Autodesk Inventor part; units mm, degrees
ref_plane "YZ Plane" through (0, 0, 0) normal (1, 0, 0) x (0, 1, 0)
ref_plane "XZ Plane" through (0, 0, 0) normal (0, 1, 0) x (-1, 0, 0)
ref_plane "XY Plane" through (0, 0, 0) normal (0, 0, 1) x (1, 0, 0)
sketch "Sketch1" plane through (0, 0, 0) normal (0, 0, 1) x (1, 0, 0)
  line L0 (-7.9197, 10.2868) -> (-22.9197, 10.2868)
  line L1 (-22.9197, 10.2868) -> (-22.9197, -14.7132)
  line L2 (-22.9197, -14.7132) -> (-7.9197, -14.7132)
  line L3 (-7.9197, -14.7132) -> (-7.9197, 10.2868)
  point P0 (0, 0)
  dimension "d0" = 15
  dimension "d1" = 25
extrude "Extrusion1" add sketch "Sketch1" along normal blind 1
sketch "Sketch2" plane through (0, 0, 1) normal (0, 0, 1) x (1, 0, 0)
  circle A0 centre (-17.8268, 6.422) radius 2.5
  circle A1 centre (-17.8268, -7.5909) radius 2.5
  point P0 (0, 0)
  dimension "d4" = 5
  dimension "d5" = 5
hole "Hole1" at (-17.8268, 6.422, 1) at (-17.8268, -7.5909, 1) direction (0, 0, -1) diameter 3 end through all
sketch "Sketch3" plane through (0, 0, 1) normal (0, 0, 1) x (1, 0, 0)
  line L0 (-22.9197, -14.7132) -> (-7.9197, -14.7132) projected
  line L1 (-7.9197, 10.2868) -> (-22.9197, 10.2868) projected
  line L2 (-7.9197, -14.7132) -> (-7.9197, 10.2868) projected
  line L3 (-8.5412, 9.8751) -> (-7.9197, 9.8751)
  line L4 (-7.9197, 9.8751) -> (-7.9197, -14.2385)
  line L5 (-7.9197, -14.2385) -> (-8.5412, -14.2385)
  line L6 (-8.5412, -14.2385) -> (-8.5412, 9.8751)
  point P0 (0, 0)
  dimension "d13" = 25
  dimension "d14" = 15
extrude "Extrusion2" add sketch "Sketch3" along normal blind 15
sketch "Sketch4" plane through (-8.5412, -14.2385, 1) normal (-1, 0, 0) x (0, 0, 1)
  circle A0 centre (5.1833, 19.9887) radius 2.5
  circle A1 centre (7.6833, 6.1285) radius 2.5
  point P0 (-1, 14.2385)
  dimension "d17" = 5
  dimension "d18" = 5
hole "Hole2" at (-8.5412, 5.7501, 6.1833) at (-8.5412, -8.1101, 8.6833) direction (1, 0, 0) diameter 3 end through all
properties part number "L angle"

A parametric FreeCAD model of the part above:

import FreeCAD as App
import Part
import Sketcher

doc = App.newDocument("Part")
body = doc.addObject("PartDesign::Body", "Body")

# Sketch on XY plane
sketch1 = body.newObject("Sketcher::SketchObject", "Sketch")
sketch1.AttachmentSupport = (doc.getObject("XY_Plane"), [""])
sketch1.MapMode = "FlatFace"
sketch1.addGeometry([
    Part.LineSegment(App.Vector(-8, -15, 0), App.Vector(-8, 10, 0)),
    Part.LineSegment(App.Vector(-8, 10, 0), App.Vector(-23, 10, 0)),
    Part.LineSegment(App.Vector(-23, 10, 0), App.Vector(-23, -15, 0)),
    Part.LineSegment(App.Vector(-23, -15, 0), App.Vector(-8, -15, 0)),
], False)
sketch1.addConstraint([
    Sketcher.Constraint("Coincident", 0, 2, 1, 1),
    Sketcher.Constraint("Coincident", 1, 2, 2, 1),
    Sketcher.Constraint("Coincident", 2, 2, 3, 1),
    Sketcher.Constraint("Coincident", 3, 2, 0, 1),
    Sketcher.Constraint("Vertical", 0),
    Sketcher.Constraint("Horizontal", 1),
    Sketcher.Constraint("Vertical", 2),
    Sketcher.Constraint("Horizontal", 3),
    Sketcher.Constraint("DistanceX", 1, 2, 1, 1, 15.0),
    Sketcher.Constraint("DistanceY", 0, 1, 0, 2, 25.0),
    Sketcher.Constraint("DistanceX", 0, 2, -1, 1, 7.9197),
    Sketcher.Constraint("DistanceY", -1, 1, 0, 2, 10.2868),
])
pad1 = body.newObject("PartDesign::Pad", "Pad")
pad1.Profile = sketch1
pad1.Length = 1

# Sketch on XY plane
sketch2 = body.newObject("Sketcher::SketchObject", "Sketch001")
sketch2.AttachmentSupport = (doc.getObject("XY_Plane"), [""])
sketch2.MapMode = "FlatFace"
sketch2.AttachmentOffset = App.Placement(App.Vector(0, 0, 1), App.Rotation())
sketch2.addGeometry([
    Part.Circle(App.Vector(-17.8, 6.4, 0), App.Vector(0, 0, 1), 1.5),
    Part.Circle(App.Vector(-17.8, -7.6, 0), App.Vector(0, 0, 1), 1.5),
], False)
sketch2.addConstraint([
    Sketcher.Constraint("Equal", 0, 1),
    Sketcher.Constraint("Vertical", 0, 3, 1, 3),
    Sketcher.Constraint("Diameter", 0, 3.0),
    Sketcher.Constraint("DistanceY", -1, 1, 0, 3, 6.422),
    Sketcher.Constraint("DistanceY", 1, 3, -1, 1, 7.591),
    Sketcher.Constraint("DistanceX", 0, 3, -1, 1, 17.8268),
])
doc.recompute()
hole = body.newObject("PartDesign::Hole", "Hole")
hole.Profile = sketch2
hole.ThreadType = "None"
hole.Diameter = 3
hole.DepthType = "ThroughAll"

# Sketch on XY plane
sketch3 = body.newObject("Sketcher::SketchObject", "Sketch002")
sketch3.AttachmentSupport = (doc.getObject("XY_Plane"), [""])
sketch3.MapMode = "FlatFace"
sketch3.AttachmentOffset = App.Placement(App.Vector(0, 0, 1), App.Rotation())
sketch3.addGeometry([
    Part.LineSegment(App.Vector(-8.5, -14.2, 0), App.Vector(-7.9, -14.2, 0)),
    Part.LineSegment(App.Vector(-7.9, -14.2, 0), App.Vector(-7.9, 9.9, 0)),
    Part.LineSegment(App.Vector(-7.9, 9.9, 0), App.Vector(-8.5, 9.9, 0)),
    Part.LineSegment(App.Vector(-8.5, 9.9, 0), App.Vector(-8.5, -14.2, 0)),
], False)
sketch3.addConstraint([
    Sketcher.Constraint("Coincident", 0, 2, 1, 1),
    Sketcher.Constraint("Coincident", 1, 2, 2, 1),
    Sketcher.Constraint("Coincident", 2, 2, 3, 1),
    Sketcher.Constraint("Coincident", 3, 2, 0, 1),
    Sketcher.Constraint("Horizontal", 0),
    Sketcher.Constraint("Vertical", 1),
    Sketcher.Constraint("Horizontal", 2),
    Sketcher.Constraint("Vertical", 3),
    Sketcher.Constraint("DistanceX", 0, 1, 0, 2, 0.6215),
    Sketcher.Constraint("DistanceY", 1, 1, 1, 2, 24.1136),
    Sketcher.Constraint("DistanceY", -1, 1, 1, 2, 9.875),
    Sketcher.Constraint("DistanceX", 0, 2, -1, 1, 7.9197),
])
pad2 = body.newObject("PartDesign::Pad", "Pad001")
pad2.Profile = sketch3
pad2.Length = 15

# Sketch on YZ plane
sketch4 = body.newObject("Sketcher::SketchObject", "Sketch003")
sketch4.AttachmentSupport = (doc.getObject("YZ_Plane"), [""])
sketch4.MapMode = "FlatFace"
sketch4.AttachmentOffset = App.Placement(App.Vector(0, 0, -8.5412), App.Rotation())
sketch4.addGeometry([
    Part.Circle(App.Vector(5.8, 6.2, 0), App.Vector(0, 0, 1), 1.5),
    Part.Circle(App.Vector(-8.1, 8.7, 0), App.Vector(0, 0, 1), 1.5),
], False)
sketch4.addConstraint([
    Sketcher.Constraint("Equal", 0, 1),
    Sketcher.Constraint("Diameter", 0, 3.0),
    Sketcher.Constraint("DistanceY", 0, 3, 1, 3, 2.5),
    Sketcher.Constraint("DistanceX", -1, 1, 0, 3, 5.75),
    Sketcher.Constraint("DistanceX", 1, 3, -1, 1, 8.11),
    Sketcher.Constraint("DistanceY", -1, 1, 0, 3, 6.1833),
])
doc.recompute()
hole2 = body.newObject("PartDesign::Hole", "Hole001")
hole2.Profile = sketch4
hole2.ThreadType = "None"
hole2.Diameter = 3
hole2.DepthType = "ThroughAll"
hole2.Reversed = True

doc.recompute()
